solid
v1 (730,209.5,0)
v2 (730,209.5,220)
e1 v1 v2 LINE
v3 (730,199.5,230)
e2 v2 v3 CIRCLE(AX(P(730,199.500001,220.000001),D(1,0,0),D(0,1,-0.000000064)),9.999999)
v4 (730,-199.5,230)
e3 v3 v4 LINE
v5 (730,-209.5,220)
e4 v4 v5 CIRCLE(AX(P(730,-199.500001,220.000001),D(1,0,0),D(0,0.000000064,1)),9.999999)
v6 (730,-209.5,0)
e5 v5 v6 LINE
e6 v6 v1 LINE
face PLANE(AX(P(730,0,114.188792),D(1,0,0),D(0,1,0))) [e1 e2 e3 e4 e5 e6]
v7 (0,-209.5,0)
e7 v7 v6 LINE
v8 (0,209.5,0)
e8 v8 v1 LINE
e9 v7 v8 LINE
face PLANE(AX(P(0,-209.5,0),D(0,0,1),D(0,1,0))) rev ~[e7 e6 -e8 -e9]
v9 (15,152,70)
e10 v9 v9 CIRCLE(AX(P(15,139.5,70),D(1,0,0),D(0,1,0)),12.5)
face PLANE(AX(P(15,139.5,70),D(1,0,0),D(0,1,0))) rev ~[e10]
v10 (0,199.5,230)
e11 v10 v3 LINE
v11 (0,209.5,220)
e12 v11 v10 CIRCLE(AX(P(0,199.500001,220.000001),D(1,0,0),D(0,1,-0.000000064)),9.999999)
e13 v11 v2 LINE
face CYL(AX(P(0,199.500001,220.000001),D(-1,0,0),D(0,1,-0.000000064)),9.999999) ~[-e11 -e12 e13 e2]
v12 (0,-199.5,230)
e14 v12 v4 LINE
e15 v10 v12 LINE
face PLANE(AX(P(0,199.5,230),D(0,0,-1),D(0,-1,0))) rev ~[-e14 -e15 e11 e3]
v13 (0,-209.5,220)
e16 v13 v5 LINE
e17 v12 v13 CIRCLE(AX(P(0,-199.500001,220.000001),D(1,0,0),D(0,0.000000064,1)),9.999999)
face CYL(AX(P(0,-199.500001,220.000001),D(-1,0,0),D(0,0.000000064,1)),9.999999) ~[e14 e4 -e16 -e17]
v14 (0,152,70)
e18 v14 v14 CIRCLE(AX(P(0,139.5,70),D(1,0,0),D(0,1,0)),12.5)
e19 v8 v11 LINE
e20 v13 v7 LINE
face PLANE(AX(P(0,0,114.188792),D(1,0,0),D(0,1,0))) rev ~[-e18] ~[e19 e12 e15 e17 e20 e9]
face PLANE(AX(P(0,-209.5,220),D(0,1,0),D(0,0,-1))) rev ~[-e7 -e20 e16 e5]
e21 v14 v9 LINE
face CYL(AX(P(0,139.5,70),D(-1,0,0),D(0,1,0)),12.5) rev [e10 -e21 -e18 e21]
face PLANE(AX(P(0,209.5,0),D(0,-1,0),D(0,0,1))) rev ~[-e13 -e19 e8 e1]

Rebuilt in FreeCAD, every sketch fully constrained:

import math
import FreeCAD as App
import Part
import Sketcher
from FreeCAD import Vector
Q = App.Units.Quantity

doc = App.newDocument("Part")
body = doc.addObject("PartDesign::Body", "Body")

# Sketch on YZ plane
sketch1 = body.newObject("Sketcher::SketchObject", "Sketch")
sketch1.AttachmentSupport = (doc.getObject("YZ_Plane"), [""])
sketch1.MapMode = "FlatFace"
sketch1.addGeometry([
    Part.LineSegment(Vector(-210, 0, 0), Vector(210, 0, 0)),  # 0
    Part.LineSegment(Vector(210, 0, 0), Vector(210, 220, 0)),  # 1
    Part.ArcOfCircle(Part.Circle(Vector(200, 220, 0), Vector(0, 0, 1), 10), math.radians(0), math.radians(90)),  # 2
    Part.LineSegment(Vector(200, 230, 0), Vector(-200, 230, 0)),  # 3
    Part.ArcOfCircle(Part.Circle(Vector(-200, 220, 0), Vector(0, 0, 1), 10), math.radians(90), math.radians(180)),  # 4
    Part.LineSegment(Vector(-210, 220, 0), Vector(-210, 0, 0)),  # 5
], False)
sketch1.addConstraint([
    Sketcher.Constraint("Coincident", 0, 2, 1, 1),
    Sketcher.Constraint("Tangent", 1, 2, 2, 1),
    Sketcher.Constraint("Tangent", 2, 2, 3, 1),
    Sketcher.Constraint("Tangent", 3, 2, 4, 1),
    Sketcher.Constraint("Tangent", 4, 2, 5, 1),
    Sketcher.Constraint("Coincident", 5, 2, 0, 1),
    Sketcher.Constraint("Horizontal", 0),
    Sketcher.Constraint("Vertical", 1),
    Sketcher.Constraint("Horizontal", 3),
    Sketcher.Constraint("Vertical", 5),
    Sketcher.Constraint("Equal", 2, 4),
    Sketcher.Constraint("Symmetric", 0, 2, 5, 2, -1, 1),
    Sketcher.Constraint("Radius", 2, Q("9.999999 mm")),
    Sketcher.Constraint("DistanceX", 0, 1, 0, 2, Q("419 mm")),
    Sketcher.Constraint("DistanceY", 1, 1, 1, 2, Q("220 mm")),
])
pad1 = body.newObject("PartDesign::Pad", "Pad")
pad1.Profile = sketch1
pad1.Length = 730

# Sketch on YZ plane
sketch2 = body.newObject("Sketcher::SketchObject", "Sketch001")
sketch2.AttachmentSupport = (doc.getObject("YZ_Plane"), [""])
sketch2.MapMode = "FlatFace"
sketch2.addGeometry(Part.Circle(Vector(140, 70, 0), Vector(0, 0, 1), 12), False)
sketch2.addConstraint([
    Sketcher.Constraint("Diameter", 0, Q("25 mm")),
    Sketcher.Constraint("DistanceY", -1, 1, 0, 3, Q("70 mm")),
    Sketcher.Constraint("DistanceX", -1, 1, 0, 3, Q("139.5 mm")),
])
pocket1 = body.newObject("PartDesign::Pocket", "Pocket")
pocket1.Profile = sketch2
pocket1.Length = 15
pocket1.Reversed = True

doc.recompute()
